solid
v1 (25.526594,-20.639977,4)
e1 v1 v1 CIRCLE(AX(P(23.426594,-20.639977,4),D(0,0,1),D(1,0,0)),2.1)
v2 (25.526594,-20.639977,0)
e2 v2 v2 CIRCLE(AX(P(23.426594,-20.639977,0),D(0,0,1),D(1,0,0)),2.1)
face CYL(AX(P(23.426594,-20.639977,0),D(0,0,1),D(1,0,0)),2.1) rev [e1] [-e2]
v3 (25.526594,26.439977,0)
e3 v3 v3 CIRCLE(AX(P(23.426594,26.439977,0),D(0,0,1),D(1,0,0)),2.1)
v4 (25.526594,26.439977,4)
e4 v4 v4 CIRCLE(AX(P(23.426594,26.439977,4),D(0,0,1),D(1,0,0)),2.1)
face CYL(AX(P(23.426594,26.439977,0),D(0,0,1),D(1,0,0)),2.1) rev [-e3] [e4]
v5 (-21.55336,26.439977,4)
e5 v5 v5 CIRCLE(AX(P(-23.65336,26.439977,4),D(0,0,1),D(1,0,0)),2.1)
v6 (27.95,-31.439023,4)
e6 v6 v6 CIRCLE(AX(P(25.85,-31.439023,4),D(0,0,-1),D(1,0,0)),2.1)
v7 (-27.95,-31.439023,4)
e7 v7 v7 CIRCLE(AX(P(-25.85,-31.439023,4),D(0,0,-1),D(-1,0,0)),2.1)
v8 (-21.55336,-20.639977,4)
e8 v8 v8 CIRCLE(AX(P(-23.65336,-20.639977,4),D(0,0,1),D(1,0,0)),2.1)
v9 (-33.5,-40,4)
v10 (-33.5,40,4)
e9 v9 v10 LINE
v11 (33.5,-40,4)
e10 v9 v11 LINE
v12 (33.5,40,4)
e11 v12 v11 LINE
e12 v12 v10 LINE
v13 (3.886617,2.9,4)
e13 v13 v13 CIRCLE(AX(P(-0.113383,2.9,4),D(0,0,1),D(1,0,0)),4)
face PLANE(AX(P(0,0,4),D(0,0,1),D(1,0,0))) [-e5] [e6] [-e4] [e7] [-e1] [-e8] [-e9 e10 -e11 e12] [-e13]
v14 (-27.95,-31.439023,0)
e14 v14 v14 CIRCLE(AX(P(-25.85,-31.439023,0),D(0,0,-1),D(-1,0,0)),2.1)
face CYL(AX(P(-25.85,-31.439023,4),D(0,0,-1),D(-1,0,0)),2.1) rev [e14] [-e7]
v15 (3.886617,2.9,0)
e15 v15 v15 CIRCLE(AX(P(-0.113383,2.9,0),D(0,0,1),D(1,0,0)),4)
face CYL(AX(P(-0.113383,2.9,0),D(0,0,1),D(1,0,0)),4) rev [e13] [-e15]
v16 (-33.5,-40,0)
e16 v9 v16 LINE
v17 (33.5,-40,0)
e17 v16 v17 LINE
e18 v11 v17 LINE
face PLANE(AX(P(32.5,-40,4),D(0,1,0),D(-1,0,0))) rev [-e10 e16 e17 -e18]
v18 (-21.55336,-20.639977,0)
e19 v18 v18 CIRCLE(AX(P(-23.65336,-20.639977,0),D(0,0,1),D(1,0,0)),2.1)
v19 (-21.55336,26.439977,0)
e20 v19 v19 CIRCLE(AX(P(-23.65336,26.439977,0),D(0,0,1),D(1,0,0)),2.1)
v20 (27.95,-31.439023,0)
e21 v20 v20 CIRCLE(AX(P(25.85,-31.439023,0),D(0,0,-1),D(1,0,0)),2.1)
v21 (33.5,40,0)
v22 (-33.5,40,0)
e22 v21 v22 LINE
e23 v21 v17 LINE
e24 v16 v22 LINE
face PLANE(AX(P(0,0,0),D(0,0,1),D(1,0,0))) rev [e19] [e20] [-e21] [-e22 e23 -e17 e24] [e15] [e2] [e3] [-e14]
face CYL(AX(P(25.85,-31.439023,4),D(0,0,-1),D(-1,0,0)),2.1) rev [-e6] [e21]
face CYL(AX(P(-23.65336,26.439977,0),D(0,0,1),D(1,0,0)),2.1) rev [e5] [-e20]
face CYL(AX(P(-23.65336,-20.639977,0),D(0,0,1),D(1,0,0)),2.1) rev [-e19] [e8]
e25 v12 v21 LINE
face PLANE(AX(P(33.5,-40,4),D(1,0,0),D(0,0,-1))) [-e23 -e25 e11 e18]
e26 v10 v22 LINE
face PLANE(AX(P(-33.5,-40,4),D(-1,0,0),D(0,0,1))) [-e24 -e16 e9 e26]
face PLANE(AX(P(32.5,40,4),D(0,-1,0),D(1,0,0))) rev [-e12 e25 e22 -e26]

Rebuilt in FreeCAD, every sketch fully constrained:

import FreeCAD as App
import Part
import Sketcher

V = App.Vector


def add_polygon(sketch, points):
    """Adds a closed chain of lines whose ends are joined by coincident constraints."""
    first, n = sketch.GeometryCount, len(points)
    for a, b in zip(points, points[1:] + points[:1]):
        sketch.addGeometry(Part.LineSegment(App.Vector(*a, 0), App.Vector(*b, 0)), False)
    for i in range(n):
        sketch.addConstraint(Sketcher.Constraint("Coincident", first + i, 2, first + (i + 1) % n, 1))

doc = App.newDocument("Part")
body = doc.addObject("PartDesign::Body", "Body")

# Sketch on XY plane
sketch1 = doc.addObject("Sketcher::SketchObject", "Sketch")
body.addObject(sketch1)
sketch1.AttachmentSupport = (doc.XY_Plane, [""])
sketch1.MapMode = "FlatFace"
add_polygon(sketch1, [(-32, 40), (-32, -40), (32, -40), (32, 40)])  # lines 0-3
sketch1.addConstraint([
    Sketcher.Constraint("Vertical", 0),
    Sketcher.Constraint("Horizontal", 1),
    Sketcher.Constraint("Vertical", 2),
    Sketcher.Constraint("Horizontal", 3),
    Sketcher.Constraint("Symmetric", 0, 2, 2, 2, -1, 1),
    Sketcher.Constraint("DistanceX", 1, 1, 1, 2, 65.0),
    Sketcher.Constraint("DistanceY", 0, 2, 0, 1, 80.0),
])
pad1 = doc.addObject("PartDesign::Pad", "Pad")
body.addObject(pad1)
pad1.Profile = sketch1
pad1.Length = 4

# Sketch on XY plane
sketch2 = doc.addObject("Sketcher::SketchObject", "Sketch001")
body.addObject(sketch2)
sketch2.AttachmentSupport = (doc.XY_Plane, [""])
sketch2.MapMode = "FlatFace"
sketch2.addGeometry([
    Part.Circle(V(-25.9, -31.4, 0), V(0, 0, 1), 2.1),
    Part.Circle(V(25.9, -31.4, 0), V(0, 0, 1), 2.1),
], False)
sketch2.addConstraint([
    Sketcher.Constraint("Equal", 0, 1),
    Sketcher.Constraint("Symmetric", 0, 3, 1, 3, -2),
    Sketcher.Constraint("Diameter", 0, 4.2),
    Sketcher.Constraint("DistanceX", 0, 3, 1, 3, 51.7),
    Sketcher.Constraint("DistanceY", 0, 3, -1, 1, 31.439023),
])
pocket1 = doc.addObject("PartDesign::Pocket", "Pocket")
body.addObject(pocket1)
pocket1.Profile = sketch2
pocket1.Type = "ThroughAll"
pocket1.Reversed = True

# Sketch on XY plane
sketch3 = doc.addObject("Sketcher::SketchObject", "Sketch002")
body.addObject(sketch3)
sketch3.AttachmentSupport = (doc.XY_Plane, [""])
sketch3.MapMode = "FlatFace"
sketch3.AttachmentOffset = App.Placement(V(0, 0, 4), App.Rotation())
sketch3.addGeometry([
    Part.Circle(V(-23.7, -20.6, 0), V(0, 0, 1), 2.1),  # 0
    Part.Circle(V(23.4, -20.6, 0), V(0, 0, 1), 2.1),  # 1
    Part.Circle(V(23.4, 26.4, 0), V(0, 0, 1), 2.1),  # 2
    Part.Circle(V(-23.7, 26.4, 0), V(0, 0, 1), 2.1),  # 3
    Part.Circle(V(-0.1, 2.9, 0), V(0, 0, 1), 4),  # 4
], False)
sketch3.addConstraint([
    Sketcher.Constraint("Equal", 0, 1),
    Sketcher.Constraint("Equal", 1, 2),
    Sketcher.Constraint("Equal", 2, 3),
    Sketcher.Constraint("Horizontal", 0, 3, 1, 3),
    Sketcher.Constraint("Horizontal", 2, 3, 3, 3),
    Sketcher.Constraint("Vertical", 1, 3, 2, 3),
    Sketcher.Constraint("Vertical", 0, 3, 3, 3),
    Sketcher.Constraint("Diameter", 4, 8.0),
    Sketcher.Constraint("Diameter", 0, 4.2),
    Sketcher.Constraint("DistanceY", -1, 1, 4, 3, 2.9),
    Sketcher.Constraint("DistanceX", 0, 3, -1, 1, 23.65336),
    Sketcher.Constraint("DistanceY", 0, 3, -1, 1, 20.639977),
    Sketcher.Constraint("DistanceX", -1, 1, 1, 3, 23.426594),
    Sketcher.Constraint("DistanceY", -1, 1, 2, 3, 26.439977),
    Sketcher.Constraint("DistanceX", 4, 3, -1, 1, 0.113383),
])
pocket2 = doc.addObject("PartDesign::Pocket", "Pocket001")
body.addObject(pocket2)
pocket2.Profile = sketch3
pocket2.Type = "ThroughAll"

# Sketch on XY plane
sketch4 = doc.addObject("Sketcher::SketchObject", "Sketch003")
body.addObject(sketch4)
sketch4.AttachmentSupport = (doc.XY_Plane, [""])
sketch4.MapMode = "FlatFace"
add_polygon(sketch4, [(-32.5, 40), (-32.5, -40), (-33.5, -40), (-33.5, 40)])  # lines 0-3
add_polygon(sketch4, [(33.5, 40), (33.5, -40), (32.5, -40), (32.5, 40)])  # lines 4-7
sketch4.addConstraint([
    Sketcher.Constraint("Vertical", 0),
    Sketcher.Constraint("Horizontal", 1),
    Sketcher.Constraint("Vertical", 2),
    Sketcher.Constraint("Horizontal", 3),
    Sketcher.Constraint("Vertical", 4),
    Sketcher.Constraint("Horizontal", 5),
    Sketcher.Constraint("Vertical", 6),
    Sketcher.Constraint("Horizontal", 7),
    Sketcher.Constraint("Symmetric", 2, 2, 4, 2, -1, 1),
    Sketcher.Constraint("Symmetric", 0, 2, 6, 2, -1, 1),
    Sketcher.Constraint("Horizontal", 1, 2, 4, 2),
    Sketcher.Constraint("DistanceX", 1, 2, 1, 1, 1.0),
    Sketcher.Constraint("DistanceY", 0, 2, 0, 1, 80.0),
    Sketcher.Constraint("DistanceX", 0, 2, 4, 2, 66.0),
])
pad2 = doc.addObject("PartDesign::Pad", "Pad001")
body.addObject(pad2)
pad2.Profile = sketch4
pad2.Length = 4

doc.recompute()
